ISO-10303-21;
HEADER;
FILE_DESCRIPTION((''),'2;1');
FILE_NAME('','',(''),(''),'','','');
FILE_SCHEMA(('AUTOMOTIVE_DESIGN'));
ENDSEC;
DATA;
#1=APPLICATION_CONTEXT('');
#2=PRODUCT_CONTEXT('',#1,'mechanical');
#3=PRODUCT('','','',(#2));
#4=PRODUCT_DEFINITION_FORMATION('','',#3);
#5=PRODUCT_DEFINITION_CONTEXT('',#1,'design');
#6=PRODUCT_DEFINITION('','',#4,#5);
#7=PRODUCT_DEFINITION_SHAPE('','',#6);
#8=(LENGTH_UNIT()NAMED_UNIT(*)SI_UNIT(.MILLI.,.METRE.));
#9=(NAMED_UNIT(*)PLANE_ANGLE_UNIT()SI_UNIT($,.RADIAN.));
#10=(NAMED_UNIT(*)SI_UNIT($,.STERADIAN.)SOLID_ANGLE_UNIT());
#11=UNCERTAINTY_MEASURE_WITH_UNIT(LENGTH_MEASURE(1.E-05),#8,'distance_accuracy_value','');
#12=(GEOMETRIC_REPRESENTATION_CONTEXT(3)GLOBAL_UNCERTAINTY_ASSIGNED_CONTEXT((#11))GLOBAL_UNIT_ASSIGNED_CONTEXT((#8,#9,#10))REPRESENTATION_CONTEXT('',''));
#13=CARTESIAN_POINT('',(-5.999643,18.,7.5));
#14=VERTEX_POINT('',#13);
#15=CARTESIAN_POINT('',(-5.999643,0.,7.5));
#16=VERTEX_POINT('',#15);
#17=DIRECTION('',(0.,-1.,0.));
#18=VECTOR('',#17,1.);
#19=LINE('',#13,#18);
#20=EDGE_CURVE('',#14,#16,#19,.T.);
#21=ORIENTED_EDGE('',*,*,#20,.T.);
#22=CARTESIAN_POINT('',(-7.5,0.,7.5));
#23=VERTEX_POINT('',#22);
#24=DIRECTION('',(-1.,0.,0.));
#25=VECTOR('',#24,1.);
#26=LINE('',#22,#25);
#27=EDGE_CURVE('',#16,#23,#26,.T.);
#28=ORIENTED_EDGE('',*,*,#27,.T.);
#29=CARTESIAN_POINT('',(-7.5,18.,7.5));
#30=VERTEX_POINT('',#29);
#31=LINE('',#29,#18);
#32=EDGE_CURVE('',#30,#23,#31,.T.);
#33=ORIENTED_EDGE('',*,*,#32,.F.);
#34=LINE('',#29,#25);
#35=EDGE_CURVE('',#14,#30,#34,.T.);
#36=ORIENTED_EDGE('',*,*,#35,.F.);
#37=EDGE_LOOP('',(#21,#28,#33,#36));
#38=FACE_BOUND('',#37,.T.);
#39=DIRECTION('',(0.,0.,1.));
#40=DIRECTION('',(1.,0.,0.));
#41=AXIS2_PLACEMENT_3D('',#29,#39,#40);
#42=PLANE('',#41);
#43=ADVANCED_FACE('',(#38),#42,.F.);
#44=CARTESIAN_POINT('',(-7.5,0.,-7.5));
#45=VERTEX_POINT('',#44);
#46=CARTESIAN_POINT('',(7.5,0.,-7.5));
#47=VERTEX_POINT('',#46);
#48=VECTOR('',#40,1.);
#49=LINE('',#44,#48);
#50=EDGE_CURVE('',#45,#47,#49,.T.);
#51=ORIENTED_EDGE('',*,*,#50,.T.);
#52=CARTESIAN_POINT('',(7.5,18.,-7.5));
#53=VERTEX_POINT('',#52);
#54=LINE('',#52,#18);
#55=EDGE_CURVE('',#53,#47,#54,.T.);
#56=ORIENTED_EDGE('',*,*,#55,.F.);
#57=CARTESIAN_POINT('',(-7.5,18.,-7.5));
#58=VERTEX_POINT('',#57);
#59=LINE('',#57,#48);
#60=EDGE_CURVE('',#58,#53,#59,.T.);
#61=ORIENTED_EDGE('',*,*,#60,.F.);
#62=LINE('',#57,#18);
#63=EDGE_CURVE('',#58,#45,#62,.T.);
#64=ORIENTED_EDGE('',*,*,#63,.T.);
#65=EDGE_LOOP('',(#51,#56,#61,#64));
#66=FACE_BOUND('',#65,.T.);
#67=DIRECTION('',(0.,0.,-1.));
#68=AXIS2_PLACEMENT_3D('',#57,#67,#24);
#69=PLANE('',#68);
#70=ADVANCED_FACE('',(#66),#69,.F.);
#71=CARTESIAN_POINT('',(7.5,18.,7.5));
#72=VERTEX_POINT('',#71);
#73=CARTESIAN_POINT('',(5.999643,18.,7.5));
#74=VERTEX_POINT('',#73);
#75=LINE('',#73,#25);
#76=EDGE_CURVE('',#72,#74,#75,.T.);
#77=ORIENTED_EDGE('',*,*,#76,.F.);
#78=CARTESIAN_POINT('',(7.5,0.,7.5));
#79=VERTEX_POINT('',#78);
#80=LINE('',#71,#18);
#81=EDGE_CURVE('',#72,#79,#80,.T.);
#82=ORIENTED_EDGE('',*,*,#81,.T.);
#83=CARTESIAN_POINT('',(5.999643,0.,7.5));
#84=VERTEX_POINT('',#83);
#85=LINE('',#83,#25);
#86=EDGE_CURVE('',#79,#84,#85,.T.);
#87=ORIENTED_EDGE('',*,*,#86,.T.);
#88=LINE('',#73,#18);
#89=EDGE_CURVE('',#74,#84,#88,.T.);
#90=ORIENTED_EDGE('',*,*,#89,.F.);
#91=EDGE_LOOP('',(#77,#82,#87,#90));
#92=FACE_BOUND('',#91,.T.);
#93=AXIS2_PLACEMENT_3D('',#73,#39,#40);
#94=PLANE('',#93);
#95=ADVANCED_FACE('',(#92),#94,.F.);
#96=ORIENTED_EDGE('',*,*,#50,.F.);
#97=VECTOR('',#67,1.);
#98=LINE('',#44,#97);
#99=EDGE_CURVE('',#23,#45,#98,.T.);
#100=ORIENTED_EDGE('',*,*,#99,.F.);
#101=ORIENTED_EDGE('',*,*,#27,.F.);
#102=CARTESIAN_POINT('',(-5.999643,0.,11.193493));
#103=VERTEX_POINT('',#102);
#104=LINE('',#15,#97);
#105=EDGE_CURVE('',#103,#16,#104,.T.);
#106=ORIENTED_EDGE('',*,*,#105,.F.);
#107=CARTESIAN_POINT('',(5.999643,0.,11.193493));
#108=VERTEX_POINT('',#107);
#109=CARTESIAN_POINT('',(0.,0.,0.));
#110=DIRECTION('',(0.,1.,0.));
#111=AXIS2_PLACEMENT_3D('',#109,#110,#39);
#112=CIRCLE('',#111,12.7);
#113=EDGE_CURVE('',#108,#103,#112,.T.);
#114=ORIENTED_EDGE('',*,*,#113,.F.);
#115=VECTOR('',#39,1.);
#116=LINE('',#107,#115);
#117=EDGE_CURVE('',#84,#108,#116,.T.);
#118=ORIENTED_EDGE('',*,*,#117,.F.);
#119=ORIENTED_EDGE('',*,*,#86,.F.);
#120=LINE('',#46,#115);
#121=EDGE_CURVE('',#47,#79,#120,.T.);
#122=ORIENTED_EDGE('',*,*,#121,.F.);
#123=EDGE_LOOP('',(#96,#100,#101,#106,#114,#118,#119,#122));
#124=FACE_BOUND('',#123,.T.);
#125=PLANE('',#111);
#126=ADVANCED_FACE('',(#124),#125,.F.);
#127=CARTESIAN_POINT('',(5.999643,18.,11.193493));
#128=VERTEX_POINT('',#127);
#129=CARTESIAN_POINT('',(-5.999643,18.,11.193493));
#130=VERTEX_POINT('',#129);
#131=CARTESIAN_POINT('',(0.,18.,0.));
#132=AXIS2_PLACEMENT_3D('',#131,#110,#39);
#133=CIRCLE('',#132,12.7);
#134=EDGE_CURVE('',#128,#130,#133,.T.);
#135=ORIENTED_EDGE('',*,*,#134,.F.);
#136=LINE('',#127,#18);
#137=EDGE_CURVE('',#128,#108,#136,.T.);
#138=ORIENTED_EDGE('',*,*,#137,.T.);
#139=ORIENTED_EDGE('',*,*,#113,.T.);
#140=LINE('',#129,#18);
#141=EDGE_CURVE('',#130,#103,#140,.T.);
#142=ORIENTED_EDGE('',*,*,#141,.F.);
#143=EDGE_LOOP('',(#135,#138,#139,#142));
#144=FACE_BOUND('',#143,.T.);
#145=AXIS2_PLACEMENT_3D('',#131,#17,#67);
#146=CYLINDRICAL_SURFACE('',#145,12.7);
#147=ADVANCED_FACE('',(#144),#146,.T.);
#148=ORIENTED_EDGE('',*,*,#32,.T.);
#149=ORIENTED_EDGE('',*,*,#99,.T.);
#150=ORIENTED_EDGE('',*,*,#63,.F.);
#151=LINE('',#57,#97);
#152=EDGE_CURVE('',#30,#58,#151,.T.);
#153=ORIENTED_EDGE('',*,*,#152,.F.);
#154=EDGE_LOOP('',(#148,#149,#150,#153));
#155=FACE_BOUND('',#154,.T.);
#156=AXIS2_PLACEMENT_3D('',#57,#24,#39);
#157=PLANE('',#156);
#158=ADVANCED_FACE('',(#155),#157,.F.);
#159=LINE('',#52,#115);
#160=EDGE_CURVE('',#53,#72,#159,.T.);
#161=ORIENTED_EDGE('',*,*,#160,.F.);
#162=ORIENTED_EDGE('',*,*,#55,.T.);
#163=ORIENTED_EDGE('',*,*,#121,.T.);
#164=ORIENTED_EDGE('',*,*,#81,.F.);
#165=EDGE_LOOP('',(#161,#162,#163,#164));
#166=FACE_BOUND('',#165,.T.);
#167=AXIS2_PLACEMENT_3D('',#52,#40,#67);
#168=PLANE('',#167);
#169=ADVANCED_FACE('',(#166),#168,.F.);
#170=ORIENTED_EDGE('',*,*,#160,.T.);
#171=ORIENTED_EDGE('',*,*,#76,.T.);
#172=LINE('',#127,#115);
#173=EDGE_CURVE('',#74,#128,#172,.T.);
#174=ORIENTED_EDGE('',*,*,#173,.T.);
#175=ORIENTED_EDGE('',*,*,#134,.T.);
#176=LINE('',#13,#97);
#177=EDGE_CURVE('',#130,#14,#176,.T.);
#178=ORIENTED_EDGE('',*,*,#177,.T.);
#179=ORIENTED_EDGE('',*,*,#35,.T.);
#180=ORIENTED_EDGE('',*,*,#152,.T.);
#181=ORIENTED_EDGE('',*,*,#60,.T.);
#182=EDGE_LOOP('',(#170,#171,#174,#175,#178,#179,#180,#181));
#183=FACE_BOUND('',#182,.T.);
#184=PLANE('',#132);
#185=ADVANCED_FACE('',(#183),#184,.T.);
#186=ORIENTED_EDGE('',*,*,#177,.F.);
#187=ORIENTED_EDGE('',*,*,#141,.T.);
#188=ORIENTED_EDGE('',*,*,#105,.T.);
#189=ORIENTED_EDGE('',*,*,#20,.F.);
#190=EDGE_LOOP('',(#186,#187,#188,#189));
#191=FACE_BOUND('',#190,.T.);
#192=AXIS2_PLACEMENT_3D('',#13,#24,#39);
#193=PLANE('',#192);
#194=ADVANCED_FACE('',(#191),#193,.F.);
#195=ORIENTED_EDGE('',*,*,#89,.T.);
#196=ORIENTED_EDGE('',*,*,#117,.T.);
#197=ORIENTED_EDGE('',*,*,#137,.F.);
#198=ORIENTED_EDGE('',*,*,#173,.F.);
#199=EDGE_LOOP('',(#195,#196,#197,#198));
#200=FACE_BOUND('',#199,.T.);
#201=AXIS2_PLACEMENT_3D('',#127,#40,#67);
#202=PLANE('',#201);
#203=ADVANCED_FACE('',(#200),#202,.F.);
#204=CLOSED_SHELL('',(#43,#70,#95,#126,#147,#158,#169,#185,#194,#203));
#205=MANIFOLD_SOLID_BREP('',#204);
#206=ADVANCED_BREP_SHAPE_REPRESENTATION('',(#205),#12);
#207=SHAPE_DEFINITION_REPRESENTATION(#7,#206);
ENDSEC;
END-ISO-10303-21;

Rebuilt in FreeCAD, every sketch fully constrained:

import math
import FreeCAD as App
import Part
import Sketcher

doc = App.newDocument("Part")
body = doc.addObject("PartDesign::Body", "Body")

sketch1 = doc.addObject("Sketcher::SketchObject", "Sketch")
body.addObject(sketch1)
sketch1.AttachmentSupport = (doc.XZ_Plane, [""])
sketch1.MapMode = "FlatFace"
sketch1.addGeometry([
    Part.LineSegment(App.Vector(7.5, 7.5, 0), App.Vector(6, 7.5, 0)),
    Part.LineSegment(App.Vector(6, 7.5, 0), App.Vector(6, 11.2, 0)),
    Part.ArcOfCircle(Part.Circle(App.Vector(0, 0, 0), App.Vector(0, 0, 1), 12.7), math.radians(118), math.radians(422)),
    Part.LineSegment(App.Vector(-6, 11.2, 0), App.Vector(-6, 7.5, 0)),
    Part.LineSegment(App.Vector(-6, 7.5, 0), App.Vector(-7.5, 7.5, 0)),
    Part.LineSegment(App.Vector(-7.5, 7.5, 0), App.Vector(-7.5, -7.5, 0)),
    Part.LineSegment(App.Vector(-7.5, -7.5, 0), App.Vector(7.5, -7.5, 0)),
    Part.LineSegment(App.Vector(7.5, -7.5, 0), App.Vector(7.5, 7.5, 0)),
], False)
sketch1.addConstraint([
    Sketcher.Constraint("Coincident", 0, 2, 1, 1),
    Sketcher.Constraint("Coincident", 1, 2, 2, 2),
    Sketcher.Constraint("Coincident", 2, 1, 3, 1),
    Sketcher.Constraint("Coincident", 3, 2, 4, 1),
    Sketcher.Constraint("Coincident", 4, 2, 5, 1),
    Sketcher.Constraint("Coincident", 5, 2, 6, 1),
    Sketcher.Constraint("Coincident", 6, 2, 7, 1),
    Sketcher.Constraint("Coincident", 7, 2, 0, 1),
    Sketcher.Constraint("Horizontal", 0),
    Sketcher.Constraint("Vertical", 1),
    Sketcher.Constraint("Vertical", 3),
    Sketcher.Constraint("Horizontal", 4),
    Sketcher.Constraint("Vertical", 5),
    Sketcher.Constraint("Horizontal", 6),
    Sketcher.Constraint("Vertical", 7),
    Sketcher.Constraint("Coincident", 2, 3, -1, 1),
    Sketcher.Constraint("Symmetric", 4, 2, 6, 2, -1, 1),
    Sketcher.Constraint("Symmetric", 0, 2, 3, 2, -2),
    Sketcher.Constraint("Equal", 6, 5),
    Sketcher.Constraint("Radius", 2, 12.7),
    Sketcher.Constraint("DistanceX", 6, 1, 6, 2, 15.0),
    Sketcher.Constraint("DistanceX", 0, 2, 0, 1, 1.500357),
])
pad1 = doc.addObject("PartDesign::Pad", "Pad")
body.addObject(pad1)
pad1.Profile = sketch1
pad1.Length = 18
pad1.Reversed = True

doc.recompute()
